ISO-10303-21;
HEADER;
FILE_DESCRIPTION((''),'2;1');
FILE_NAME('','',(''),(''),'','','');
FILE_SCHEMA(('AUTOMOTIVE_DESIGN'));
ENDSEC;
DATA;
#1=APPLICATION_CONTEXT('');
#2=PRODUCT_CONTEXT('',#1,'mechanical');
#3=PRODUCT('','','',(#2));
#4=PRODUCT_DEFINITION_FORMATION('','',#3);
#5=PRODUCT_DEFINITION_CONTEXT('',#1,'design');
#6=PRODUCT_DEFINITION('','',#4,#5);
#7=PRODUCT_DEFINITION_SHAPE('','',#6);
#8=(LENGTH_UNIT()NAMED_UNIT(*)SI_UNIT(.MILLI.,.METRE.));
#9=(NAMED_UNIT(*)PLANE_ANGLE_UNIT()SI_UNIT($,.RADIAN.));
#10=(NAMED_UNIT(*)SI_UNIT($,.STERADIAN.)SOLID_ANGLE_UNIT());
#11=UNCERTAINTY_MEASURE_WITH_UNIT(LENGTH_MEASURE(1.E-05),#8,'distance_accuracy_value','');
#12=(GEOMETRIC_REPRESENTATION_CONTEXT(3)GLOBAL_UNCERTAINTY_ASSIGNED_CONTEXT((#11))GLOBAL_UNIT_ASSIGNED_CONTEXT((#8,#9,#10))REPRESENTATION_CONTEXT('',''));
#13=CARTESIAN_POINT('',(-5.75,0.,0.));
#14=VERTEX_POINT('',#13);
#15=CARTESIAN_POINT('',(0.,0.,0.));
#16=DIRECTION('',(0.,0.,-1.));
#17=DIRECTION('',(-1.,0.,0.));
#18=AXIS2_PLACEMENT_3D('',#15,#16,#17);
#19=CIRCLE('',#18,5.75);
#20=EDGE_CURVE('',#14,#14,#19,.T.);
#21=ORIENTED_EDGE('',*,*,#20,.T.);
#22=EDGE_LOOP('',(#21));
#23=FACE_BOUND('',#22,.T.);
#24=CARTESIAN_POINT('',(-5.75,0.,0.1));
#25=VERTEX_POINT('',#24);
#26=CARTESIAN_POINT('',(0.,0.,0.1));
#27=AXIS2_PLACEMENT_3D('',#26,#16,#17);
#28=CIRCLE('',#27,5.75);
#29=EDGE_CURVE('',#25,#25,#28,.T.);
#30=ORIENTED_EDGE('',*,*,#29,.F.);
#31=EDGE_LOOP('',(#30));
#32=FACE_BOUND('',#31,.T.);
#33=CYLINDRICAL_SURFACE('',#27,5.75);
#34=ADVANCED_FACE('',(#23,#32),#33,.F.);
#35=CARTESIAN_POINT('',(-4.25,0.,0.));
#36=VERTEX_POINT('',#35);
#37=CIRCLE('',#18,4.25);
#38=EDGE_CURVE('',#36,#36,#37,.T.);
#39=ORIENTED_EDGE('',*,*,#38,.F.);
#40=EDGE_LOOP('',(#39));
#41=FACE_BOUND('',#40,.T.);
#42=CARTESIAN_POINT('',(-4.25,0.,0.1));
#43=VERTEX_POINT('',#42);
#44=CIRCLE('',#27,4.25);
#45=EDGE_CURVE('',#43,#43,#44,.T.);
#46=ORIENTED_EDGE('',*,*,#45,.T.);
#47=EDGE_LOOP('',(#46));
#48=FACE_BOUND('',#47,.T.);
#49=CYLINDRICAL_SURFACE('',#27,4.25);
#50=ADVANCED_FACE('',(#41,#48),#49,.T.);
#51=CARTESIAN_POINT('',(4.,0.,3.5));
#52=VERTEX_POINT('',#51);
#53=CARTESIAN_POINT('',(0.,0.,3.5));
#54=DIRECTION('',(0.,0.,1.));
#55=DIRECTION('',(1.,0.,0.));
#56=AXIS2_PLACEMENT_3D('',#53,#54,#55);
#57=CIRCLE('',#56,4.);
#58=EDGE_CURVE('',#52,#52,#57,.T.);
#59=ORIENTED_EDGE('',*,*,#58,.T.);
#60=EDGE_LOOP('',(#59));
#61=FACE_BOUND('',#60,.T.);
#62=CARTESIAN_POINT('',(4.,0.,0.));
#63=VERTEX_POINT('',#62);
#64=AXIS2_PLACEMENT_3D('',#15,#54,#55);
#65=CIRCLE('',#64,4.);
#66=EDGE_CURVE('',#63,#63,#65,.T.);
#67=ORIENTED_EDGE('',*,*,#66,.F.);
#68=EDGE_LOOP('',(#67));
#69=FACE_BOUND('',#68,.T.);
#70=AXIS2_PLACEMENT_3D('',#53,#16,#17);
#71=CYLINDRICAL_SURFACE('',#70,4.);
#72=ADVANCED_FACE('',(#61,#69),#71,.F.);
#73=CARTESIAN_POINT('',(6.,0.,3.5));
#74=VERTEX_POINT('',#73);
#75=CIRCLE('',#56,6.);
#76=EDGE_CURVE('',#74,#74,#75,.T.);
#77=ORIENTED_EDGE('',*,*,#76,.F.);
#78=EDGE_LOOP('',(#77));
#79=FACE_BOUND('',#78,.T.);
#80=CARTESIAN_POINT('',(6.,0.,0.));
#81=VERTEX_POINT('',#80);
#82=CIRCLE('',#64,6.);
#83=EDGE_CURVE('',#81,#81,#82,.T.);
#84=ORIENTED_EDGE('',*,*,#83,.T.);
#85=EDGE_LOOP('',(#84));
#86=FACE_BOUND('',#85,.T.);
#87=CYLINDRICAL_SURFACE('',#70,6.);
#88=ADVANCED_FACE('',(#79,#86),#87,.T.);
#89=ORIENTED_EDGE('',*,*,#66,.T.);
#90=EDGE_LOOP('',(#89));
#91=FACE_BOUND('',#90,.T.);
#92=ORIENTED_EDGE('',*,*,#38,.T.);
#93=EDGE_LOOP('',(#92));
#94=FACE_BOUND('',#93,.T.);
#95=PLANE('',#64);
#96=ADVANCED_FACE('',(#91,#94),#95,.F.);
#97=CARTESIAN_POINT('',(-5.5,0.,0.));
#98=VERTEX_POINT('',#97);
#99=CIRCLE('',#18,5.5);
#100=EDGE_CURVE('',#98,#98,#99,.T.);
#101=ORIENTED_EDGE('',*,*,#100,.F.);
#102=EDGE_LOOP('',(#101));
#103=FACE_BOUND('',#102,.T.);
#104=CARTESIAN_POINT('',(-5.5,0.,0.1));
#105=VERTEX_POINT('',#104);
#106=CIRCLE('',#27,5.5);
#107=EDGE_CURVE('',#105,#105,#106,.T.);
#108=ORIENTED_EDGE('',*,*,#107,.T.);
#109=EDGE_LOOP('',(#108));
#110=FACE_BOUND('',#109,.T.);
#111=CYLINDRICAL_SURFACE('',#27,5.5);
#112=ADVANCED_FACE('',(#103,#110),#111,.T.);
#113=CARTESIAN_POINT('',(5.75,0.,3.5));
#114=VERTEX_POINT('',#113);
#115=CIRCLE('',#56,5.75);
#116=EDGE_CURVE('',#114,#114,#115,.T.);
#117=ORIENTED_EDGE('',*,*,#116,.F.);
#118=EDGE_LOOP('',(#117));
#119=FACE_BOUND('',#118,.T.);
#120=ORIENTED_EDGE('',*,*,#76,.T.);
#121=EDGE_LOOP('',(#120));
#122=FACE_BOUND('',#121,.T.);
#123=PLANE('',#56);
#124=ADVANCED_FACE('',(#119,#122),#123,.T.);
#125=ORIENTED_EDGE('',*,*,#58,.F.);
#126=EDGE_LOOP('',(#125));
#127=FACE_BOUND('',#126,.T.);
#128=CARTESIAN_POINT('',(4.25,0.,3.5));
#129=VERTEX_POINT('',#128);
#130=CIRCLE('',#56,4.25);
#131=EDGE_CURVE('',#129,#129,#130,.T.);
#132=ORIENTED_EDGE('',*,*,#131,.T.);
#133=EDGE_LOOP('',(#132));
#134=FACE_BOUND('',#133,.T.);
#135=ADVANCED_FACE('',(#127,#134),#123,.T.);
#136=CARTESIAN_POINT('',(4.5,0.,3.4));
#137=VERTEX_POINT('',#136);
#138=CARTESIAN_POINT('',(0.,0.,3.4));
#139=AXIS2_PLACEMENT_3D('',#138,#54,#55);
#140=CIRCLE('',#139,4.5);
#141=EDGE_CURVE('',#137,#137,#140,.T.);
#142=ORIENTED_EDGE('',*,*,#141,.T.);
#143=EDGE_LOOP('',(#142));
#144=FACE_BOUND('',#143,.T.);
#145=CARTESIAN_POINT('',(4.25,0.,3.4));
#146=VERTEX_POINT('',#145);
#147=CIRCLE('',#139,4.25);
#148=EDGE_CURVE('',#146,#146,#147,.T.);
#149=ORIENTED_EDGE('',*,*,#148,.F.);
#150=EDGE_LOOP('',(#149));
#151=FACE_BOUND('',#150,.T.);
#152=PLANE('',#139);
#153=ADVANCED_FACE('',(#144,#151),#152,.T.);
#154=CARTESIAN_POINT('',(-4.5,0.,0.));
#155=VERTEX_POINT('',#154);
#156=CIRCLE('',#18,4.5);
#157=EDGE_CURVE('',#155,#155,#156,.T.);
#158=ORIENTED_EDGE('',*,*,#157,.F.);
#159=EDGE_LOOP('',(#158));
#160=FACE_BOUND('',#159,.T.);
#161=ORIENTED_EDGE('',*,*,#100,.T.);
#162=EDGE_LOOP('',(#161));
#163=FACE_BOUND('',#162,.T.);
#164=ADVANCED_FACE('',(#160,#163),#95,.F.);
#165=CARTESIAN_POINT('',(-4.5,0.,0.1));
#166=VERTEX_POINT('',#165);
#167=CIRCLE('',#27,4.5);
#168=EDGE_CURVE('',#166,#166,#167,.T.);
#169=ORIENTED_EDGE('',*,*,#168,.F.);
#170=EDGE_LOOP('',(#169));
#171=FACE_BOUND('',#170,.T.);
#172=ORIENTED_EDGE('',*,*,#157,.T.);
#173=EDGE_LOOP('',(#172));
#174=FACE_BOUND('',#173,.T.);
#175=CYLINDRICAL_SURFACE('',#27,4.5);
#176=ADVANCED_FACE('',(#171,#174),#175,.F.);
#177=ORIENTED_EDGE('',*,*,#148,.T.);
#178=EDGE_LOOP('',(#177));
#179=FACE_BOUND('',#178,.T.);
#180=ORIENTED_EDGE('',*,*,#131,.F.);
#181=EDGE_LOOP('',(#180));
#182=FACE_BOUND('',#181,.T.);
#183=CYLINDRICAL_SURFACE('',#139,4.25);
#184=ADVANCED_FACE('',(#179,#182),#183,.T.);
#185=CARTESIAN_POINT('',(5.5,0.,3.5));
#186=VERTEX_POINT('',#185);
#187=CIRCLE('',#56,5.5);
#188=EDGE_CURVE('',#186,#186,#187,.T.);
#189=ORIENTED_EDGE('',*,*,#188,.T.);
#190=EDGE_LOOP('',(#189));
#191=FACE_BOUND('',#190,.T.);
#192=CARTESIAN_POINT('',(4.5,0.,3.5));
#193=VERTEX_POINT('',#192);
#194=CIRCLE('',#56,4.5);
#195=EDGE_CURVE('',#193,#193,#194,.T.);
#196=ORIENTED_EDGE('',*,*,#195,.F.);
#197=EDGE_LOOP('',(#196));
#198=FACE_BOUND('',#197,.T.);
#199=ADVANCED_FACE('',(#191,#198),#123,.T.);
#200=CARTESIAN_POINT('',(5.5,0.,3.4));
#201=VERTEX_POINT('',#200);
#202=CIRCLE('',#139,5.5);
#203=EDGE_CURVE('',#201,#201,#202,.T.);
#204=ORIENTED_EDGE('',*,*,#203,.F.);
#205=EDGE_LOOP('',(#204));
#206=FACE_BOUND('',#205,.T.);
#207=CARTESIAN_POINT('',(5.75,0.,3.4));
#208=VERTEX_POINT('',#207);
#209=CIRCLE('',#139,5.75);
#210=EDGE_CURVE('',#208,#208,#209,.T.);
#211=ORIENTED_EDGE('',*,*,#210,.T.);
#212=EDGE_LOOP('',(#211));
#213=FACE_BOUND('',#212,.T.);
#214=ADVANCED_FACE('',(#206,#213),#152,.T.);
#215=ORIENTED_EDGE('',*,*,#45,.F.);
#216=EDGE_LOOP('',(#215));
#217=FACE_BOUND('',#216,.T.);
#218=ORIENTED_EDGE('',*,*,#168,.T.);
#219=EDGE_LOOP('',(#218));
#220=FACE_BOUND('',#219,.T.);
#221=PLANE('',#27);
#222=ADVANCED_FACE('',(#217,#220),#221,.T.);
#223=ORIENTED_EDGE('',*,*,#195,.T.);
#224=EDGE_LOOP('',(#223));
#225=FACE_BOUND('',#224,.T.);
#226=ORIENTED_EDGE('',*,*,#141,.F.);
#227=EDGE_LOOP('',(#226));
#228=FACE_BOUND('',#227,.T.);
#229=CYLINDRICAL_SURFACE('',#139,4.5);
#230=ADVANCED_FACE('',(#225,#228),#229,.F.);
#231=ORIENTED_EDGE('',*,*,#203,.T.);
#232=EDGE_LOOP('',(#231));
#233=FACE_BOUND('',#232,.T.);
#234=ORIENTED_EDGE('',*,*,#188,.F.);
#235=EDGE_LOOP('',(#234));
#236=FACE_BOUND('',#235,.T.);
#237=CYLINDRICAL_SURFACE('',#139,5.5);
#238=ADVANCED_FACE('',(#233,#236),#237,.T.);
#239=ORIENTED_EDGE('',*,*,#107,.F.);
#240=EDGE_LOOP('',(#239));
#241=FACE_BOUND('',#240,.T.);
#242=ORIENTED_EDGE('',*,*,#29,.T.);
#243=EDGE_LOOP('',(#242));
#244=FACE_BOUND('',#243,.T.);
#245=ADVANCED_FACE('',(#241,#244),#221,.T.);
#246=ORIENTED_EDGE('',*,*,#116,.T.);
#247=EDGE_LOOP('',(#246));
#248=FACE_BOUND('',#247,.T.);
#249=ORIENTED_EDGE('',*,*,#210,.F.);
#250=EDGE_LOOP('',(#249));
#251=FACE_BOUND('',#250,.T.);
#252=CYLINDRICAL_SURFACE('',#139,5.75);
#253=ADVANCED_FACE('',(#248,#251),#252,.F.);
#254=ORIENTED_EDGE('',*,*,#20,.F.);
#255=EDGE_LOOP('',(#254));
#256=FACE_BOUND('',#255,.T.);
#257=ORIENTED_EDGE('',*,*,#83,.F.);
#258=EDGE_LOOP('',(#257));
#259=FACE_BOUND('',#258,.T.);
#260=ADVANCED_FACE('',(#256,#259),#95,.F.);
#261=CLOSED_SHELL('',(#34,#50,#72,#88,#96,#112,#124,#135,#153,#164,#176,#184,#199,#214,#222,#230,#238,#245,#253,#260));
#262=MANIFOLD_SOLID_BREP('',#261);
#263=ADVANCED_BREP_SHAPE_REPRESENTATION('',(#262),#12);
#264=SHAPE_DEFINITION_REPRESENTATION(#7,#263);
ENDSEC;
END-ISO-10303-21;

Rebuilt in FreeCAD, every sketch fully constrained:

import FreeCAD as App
import Part
import Sketcher

V = App.Vector
Q = App.Units.Quantity

doc = App.newDocument("Part")
body = doc.addObject("PartDesign::Body", "Body")

# Sketch on XY plane
sketch1 = body.newObject("Sketcher::SketchObject", "Sketch")
sketch1.AttachmentSupport = (doc.getObject("XY_Plane"), [""])
sketch1.MapMode = "FlatFace"
sketch1.addGeometry([
    Part.Circle(V(0, 0, 0), V(0, 0, 1), 6),
    Part.Circle(V(0, 0, 0), V(0, 0, 1), 4),
], False)
sketch1.addConstraint([
    Sketcher.Constraint("Coincident", 0, 3, -1, 1),
    Sketcher.Constraint("Coincident", 1, 3, -1, 1),
    Sketcher.Constraint("Diameter", 0, Q("12 mm")),
    Sketcher.Constraint("Diameter", 1, Q("8 mm")),
])
pad1 = body.newObject("PartDesign::Pad", "Pad")
pad1.Profile = sketch1
pad1.Length = 3.5

# Sketch on XY plane
sketch2 = body.newObject("Sketcher::SketchObject", "Sketch001")
sketch2.AttachmentSupport = (doc.getObject("XY_Plane"), [""])
sketch2.MapMode = "FlatFace"
sketch2.AttachmentOffset = App.Placement(V(0, 0, 3.5), App.Rotation())
sketch2.addGeometry([
    Part.Circle(V(0, 0, 0), V(0, 0, 1), 5.8),
    Part.Circle(V(0, 0, 0), V(0, 0, 1), 5.5),
    Part.Circle(V(0, 0, 0), V(0, 0, 1), 4.5),
    Part.Circle(V(0, 0, 0), V(0, 0, 1), 4.2),
], False)
sketch2.addConstraint([
    Sketcher.Constraint("Coincident", 0, 3, -1, 1),
    Sketcher.Constraint("Coincident", 1, 3, -1, 1),
    Sketcher.Constraint("Coincident", 2, 3, -1, 1),
    Sketcher.Constraint("Coincident", 3, 3, -1, 1),
    Sketcher.Constraint("Diameter", 1, Q("11 mm")),
    Sketcher.Constraint("Diameter", 2, Q("9 mm")),
    Sketcher.Constraint("Diameter", 0, Q("11.5 mm")),
    Sketcher.Constraint("Diameter", 3, Q("8.5 mm")),
])
pocket1 = body.newObject("PartDesign::Pocket", "Pocket")
pocket1.Profile = sketch2
pocket1.Length = 0.1

# Sketch on XY plane
sketch3 = body.newObject("Sketcher::SketchObject", "Sketch002")
sketch3.AttachmentSupport = (doc.getObject("XY_Plane"), [""])
sketch3.MapMode = "FlatFace"
sketch3.AttachmentOffset = App.Placement(V(0, 0, 0.1), App.Rotation())
sketch3.addGeometry([
    Part.Circle(V(0, 0, 0), V(0, 0, 1), 5.8),
    Part.Circle(V(0, 0, 0), V(0, 0, 1), 5.5),
    Part.Circle(V(0, 0, 0), V(0, 0, 1), 4.5),
    Part.Circle(V(0, 0, 0), V(0, 0, 1), 4.2),
], False)
sketch3.addConstraint([
    Sketcher.Constraint("Coincident", 0, 3, -1, 1),
    Sketcher.Constraint("Coincident", 1, 3, -1, 1),
    Sketcher.Constraint("Coincident", 2, 3, -1, 1),
    Sketcher.Constraint("Coincident", 3, 3, -1, 1),
    Sketcher.Constraint("Diameter", 1, Q("11 mm")),
    Sketcher.Constraint("Diameter", 2, Q("9 mm")),
    Sketcher.Constraint("Diameter", 0, Q("11.5 mm")),
    Sketcher.Constraint("Diameter", 3, Q("8.5 mm")),
])
pocket2 = body.newObject("PartDesign::Pocket", "Pocket001")
pocket2.Profile = sketch3
pocket2.Length = 0.1

doc.recompute()
